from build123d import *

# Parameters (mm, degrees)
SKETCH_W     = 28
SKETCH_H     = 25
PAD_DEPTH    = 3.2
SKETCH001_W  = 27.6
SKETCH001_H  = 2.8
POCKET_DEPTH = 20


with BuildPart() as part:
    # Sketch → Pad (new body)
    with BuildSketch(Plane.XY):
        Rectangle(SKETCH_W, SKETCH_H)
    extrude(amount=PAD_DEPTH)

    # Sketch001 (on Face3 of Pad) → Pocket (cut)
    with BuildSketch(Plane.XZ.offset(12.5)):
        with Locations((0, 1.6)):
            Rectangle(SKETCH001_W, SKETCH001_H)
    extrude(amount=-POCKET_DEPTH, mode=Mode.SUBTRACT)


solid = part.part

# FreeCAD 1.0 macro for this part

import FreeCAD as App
import Part
import Sketcher
from FreeCAD import Vector
Q = App.Units.Quantity


def add_polygon(sketch, points):
    """Adds a closed chain of lines whose ends are joined by coincident constraints."""
    first, n = sketch.GeometryCount, len(points)
    for a, b in zip(points, points[1:] + points[:1]):
        sketch.addGeometry(Part.LineSegment(App.Vector(*a, 0), App.Vector(*b, 0)), False)
    for i in range(n):
        sketch.addConstraint(Sketcher.Constraint("Coincident", first + i, 2, first + (i + 1) % n, 1))

doc = App.newDocument("Part")
body = doc.addObject("PartDesign::Body", "Body")

sketch1 = doc.addObject("Sketcher::SketchObject", "Sketch")
body.addObject(sketch1)
sketch1.AttachmentSupport = (doc.XY_Plane, [""])
sketch1.MapMode = "FlatFace"
add_polygon(sketch1, [(-14, 12), (-14, -12), (14, -12), (14, 12)])
sketch1.addConstraint(Sketcher.Constraint("Vertical", 0))
sketch1.addConstraint(Sketcher.Constraint("Horizontal", 1))
sketch1.addConstraint(Sketcher.Constraint("Vertical", 2))
sketch1.addConstraint(Sketcher.Constraint("Horizontal", 3))
sketch1.addConstraint(Sketcher.Constraint("Symmetric", 0, 2, 2, 2, -1, 1))
sketch1.addConstraint(Sketcher.Constraint("DistanceX", 1, 1, 1, 2, Q("28 mm")))
sketch1.addConstraint(Sketcher.Constraint("DistanceY", 0, 2, 0, 1, Q("25 mm")))
pad1 = doc.addObject("PartDesign::Pad", "Pad")
body.addObject(pad1)
pad1.Profile = sketch1
pad1.Length = 3.2

sketch2 = doc.addObject("Sketcher::SketchObject", "Sketch001")
body.addObject(sketch2)
sketch2.AttachmentSupport = (doc.XZ_Plane, [""])
sketch2.MapMode = "FlatFace"
sketch2.AttachmentOffset = App.Placement(Vector(0, 0, 12.5), App.Rotation())
add_polygon(sketch2, [(-13.8, 3), (-13.8, 0.2), (13.8, 0.2), (13.8, 3)])
sketch2.addConstraint(Sketcher.Constraint("Vertical", 0))
sketch2.addConstraint(Sketcher.Constraint("Horizontal", 1))
sketch2.addConstraint(Sketcher.Constraint("Vertical", 2))
sketch2.addConstraint(Sketcher.Constraint("Horizontal", 3))
sketch2.addConstraint(Sketcher.Constraint("DistanceX", 1, 1, 1, 2, Q("27.6 mm")))
sketch2.addConstraint(Sketcher.Constraint("DistanceY", 0, 2, 0, 1, Q("2.8 mm")))
sketch2.addConstraint(Sketcher.Constraint("DistanceY", -1, 1, 2, 2, Q("3 mm")))
sketch2.addConstraint(Sketcher.Constraint("DistanceX", 0, 2, -1, 1, Q("13.8 mm")))
pocket1 = doc.addObject("PartDesign::Pocket", "Pocket")
body.addObject(pocket1)
pocket1.Profile = sketch2
pocket1.Length = 20

doc.recompute()
